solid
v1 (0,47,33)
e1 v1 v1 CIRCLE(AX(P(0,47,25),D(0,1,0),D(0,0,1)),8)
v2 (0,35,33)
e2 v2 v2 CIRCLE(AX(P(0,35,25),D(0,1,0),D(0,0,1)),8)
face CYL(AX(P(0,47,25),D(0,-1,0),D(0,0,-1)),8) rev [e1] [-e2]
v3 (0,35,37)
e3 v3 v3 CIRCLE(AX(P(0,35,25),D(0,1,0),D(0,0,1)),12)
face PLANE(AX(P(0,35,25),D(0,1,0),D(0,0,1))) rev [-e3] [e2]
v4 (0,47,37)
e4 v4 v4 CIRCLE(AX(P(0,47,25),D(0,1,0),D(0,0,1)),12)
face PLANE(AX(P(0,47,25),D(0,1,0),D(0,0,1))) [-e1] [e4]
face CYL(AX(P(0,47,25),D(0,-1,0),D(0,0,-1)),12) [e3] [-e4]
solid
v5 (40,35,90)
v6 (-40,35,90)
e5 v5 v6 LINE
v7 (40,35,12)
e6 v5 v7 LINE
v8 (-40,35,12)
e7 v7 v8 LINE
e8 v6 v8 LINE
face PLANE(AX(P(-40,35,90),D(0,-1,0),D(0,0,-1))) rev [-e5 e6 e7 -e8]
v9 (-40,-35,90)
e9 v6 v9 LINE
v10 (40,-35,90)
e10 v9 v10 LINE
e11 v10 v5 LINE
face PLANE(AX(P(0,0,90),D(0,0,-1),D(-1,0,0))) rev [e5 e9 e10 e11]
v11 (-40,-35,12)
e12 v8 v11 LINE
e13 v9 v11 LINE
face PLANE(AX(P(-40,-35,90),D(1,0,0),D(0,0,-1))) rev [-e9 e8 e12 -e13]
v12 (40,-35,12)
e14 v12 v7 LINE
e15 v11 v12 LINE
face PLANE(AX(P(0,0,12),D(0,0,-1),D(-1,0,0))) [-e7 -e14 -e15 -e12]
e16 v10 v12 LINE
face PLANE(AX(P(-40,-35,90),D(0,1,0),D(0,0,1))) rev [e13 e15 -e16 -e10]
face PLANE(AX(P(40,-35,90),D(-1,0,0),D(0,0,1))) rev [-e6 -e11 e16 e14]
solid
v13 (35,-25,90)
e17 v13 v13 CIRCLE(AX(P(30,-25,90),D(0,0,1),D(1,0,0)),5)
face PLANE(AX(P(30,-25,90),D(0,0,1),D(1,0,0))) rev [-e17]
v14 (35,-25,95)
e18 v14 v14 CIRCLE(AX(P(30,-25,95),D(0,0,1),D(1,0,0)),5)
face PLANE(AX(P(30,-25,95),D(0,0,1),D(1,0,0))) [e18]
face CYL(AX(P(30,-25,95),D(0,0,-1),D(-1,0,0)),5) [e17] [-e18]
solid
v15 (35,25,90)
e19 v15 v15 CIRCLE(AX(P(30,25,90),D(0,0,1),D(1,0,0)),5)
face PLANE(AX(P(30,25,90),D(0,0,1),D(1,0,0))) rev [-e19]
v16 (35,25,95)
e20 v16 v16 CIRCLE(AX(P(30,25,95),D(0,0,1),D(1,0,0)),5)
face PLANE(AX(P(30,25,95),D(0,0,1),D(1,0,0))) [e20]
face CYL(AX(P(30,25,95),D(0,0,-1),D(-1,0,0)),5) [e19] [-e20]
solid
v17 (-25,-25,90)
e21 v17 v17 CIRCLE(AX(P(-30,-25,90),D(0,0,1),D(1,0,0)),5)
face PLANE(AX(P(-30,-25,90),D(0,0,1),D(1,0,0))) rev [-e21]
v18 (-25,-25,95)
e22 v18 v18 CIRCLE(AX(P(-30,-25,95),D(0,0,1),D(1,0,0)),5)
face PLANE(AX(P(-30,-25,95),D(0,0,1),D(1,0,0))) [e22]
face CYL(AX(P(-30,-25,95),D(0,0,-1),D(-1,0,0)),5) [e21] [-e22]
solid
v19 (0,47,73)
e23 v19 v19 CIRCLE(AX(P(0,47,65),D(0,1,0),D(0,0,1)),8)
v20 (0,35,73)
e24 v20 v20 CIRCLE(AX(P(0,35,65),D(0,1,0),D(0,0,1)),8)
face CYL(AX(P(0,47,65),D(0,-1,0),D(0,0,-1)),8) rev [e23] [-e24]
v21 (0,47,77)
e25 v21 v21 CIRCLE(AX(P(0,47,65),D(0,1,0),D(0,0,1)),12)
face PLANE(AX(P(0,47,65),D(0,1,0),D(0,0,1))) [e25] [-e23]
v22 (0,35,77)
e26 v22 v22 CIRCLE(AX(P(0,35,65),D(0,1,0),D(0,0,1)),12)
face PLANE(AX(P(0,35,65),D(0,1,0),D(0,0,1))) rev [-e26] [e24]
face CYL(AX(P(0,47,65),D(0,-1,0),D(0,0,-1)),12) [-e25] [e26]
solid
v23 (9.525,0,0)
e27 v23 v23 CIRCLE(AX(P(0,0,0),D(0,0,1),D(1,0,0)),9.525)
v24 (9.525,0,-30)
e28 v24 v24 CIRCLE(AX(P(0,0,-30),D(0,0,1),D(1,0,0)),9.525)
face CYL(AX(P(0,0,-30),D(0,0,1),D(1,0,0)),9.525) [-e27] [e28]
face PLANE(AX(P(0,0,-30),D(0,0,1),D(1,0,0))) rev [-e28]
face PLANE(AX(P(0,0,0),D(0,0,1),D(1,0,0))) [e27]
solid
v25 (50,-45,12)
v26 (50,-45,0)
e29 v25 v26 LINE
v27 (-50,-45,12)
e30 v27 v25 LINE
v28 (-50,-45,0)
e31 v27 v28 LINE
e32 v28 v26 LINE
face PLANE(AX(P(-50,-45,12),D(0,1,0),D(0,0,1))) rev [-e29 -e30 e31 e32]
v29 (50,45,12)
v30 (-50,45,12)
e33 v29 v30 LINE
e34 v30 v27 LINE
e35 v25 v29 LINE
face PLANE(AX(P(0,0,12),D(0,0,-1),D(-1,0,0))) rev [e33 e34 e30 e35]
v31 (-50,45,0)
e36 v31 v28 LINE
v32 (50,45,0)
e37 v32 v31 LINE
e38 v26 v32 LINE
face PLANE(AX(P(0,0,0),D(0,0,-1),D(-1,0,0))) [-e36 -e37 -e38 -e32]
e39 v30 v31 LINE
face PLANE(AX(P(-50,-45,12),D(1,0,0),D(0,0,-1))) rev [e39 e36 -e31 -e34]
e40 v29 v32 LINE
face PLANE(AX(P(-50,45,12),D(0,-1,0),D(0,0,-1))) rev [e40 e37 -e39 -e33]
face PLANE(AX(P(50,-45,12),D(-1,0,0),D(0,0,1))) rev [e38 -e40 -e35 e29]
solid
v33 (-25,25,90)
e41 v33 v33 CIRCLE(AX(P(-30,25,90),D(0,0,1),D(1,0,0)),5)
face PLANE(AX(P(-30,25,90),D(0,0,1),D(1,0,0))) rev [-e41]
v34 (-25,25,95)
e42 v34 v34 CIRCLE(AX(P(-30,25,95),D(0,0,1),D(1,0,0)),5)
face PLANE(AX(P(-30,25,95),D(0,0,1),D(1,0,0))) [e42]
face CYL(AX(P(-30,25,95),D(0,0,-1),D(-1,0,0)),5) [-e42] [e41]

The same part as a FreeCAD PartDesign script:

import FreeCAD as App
import Part
import Sketcher

doc = App.newDocument("Part")
body = doc.addObject("PartDesign::Body", "Body")

sketch1 = body.newObject("Sketcher::SketchObject", "Sketch")
sketch1.AttachmentSupport = (doc.getObject("XY_Plane"), [""])
sketch1.MapMode = "FlatFace"
sketch1.AttachmentOffset = App.Placement(App.Vector(0, 0, 12), App.Rotation())
sketch1.addGeometry(Part.LineSegment(App.Vector(-40, 35, 0), App.Vector(-40, -35, 0)), False)
sketch1.addGeometry(Part.LineSegment(App.Vector(-40, -35, 0), App.Vector(40, -35, 0)), False)
sketch1.addGeometry(Part.LineSegment(App.Vector(40, -35, 0), App.Vector(40, 35, 0)), False)
sketch1.addGeometry(Part.LineSegment(App.Vector(40, 35, 0), App.Vector(-40, 35, 0)), False)
sketch1.addConstraint(Sketcher.Constraint("Coincident", 0, 2, 1, 1))
sketch1.addConstraint(Sketcher.Constraint("Coincident", 1, 2, 2, 1))
sketch1.addConstraint(Sketcher.Constraint("Coincident", 2, 2, 3, 1))
sketch1.addConstraint(Sketcher.Constraint("Coincident", 3, 2, 0, 1))
sketch1.addConstraint(Sketcher.Constraint("Vertical", 0))
sketch1.addConstraint(Sketcher.Constraint("Horizontal", 1))
sketch1.addConstraint(Sketcher.Constraint("Vertical", 2))
sketch1.addConstraint(Sketcher.Constraint("Horizontal", 3))
sketch1.addConstraint(Sketcher.Constraint("Symmetric", 0, 2, 2, 2, -1, 1))
sketch1.addConstraint(Sketcher.Constraint("DistanceX", 1, 1, 1, 2, 80.0))
sketch1.addConstraint(Sketcher.Constraint("DistanceY", 0, 2, 0, 1, 70.0))
pad1 = body.newObject("PartDesign::Pad", "Pad")
pad1.Profile = sketch1
pad1.Length = 78
body2 = doc.addObject("PartDesign::Body", "Body001")

sketch2 = body2.newObject("Sketcher::SketchObject", "Sketch001")
sketch2.AttachmentSupport = (doc.getObject("XY_Plane001"), [""])
sketch2.MapMode = "FlatFace"
sketch2.addGeometry(Part.LineSegment(App.Vector(-50, 45, 0), App.Vector(-50, -45, 0)), False)
sketch2.addGeometry(Part.LineSegment(App.Vector(-50, -45, 0), App.Vector(50, -45, 0)), False)
sketch2.addGeometry(Part.LineSegment(App.Vector(50, -45, 0), App.Vector(50, 45, 0)), False)
sketch2.addGeometry(Part.LineSegment(App.Vector(50, 45, 0), App.Vector(-50, 45, 0)), False)
sketch2.addConstraint(Sketcher.Constraint("Coincident", 0, 2, 1, 1))
sketch2.addConstraint(Sketcher.Constraint("Coincident", 1, 2, 2, 1))
sketch2.addConstraint(Sketcher.Constraint("Coincident", 2, 2, 3, 1))
sketch2.addConstraint(Sketcher.Constraint("Coincident", 3, 2, 0, 1))
sketch2.addConstraint(Sketcher.Constraint("Vertical", 0))
sketch2.addConstraint(Sketcher.Constraint("Horizontal", 1))
sketch2.addConstraint(Sketcher.Constraint("Vertical", 2))
sketch2.addConstraint(Sketcher.Constraint("Horizontal", 3))
sketch2.addConstraint(Sketcher.Constraint("Symmetric", 0, 2, 2, 2, -1, 1))
sketch2.addConstraint(Sketcher.Constraint("DistanceX", 1, 1, 1, 2, 100.0))
sketch2.addConstraint(Sketcher.Constraint("DistanceY", 0, 2, 0, 1, 90.0))
pad2 = body2.newObject("PartDesign::Pad", "Pad001")
pad2.Profile = sketch2
pad2.Length = 12
body3 = doc.addObject("PartDesign::Body", "Body002")

sketch3 = body3.newObject("Sketcher::SketchObject", "Sketch002")
sketch3.AttachmentSupport = (doc.getObject("XY_Plane002"), [""])
sketch3.MapMode = "FlatFace"
sketch3.addGeometry(Part.Circle(App.Vector(0, 0, 0), App.Vector(0, 0, 1), 10), False)
sketch3.addConstraint(Sketcher.Constraint("Coincident", 0, 3, -1, 1))
sketch3.addConstraint(Sketcher.Constraint("Diameter", 0, 19.05))
pad3 = body3.newObject("PartDesign::Pad", "Pad002")
pad3.Profile = sketch3
pad3.Length = 30
pad3.Reversed = True
body4 = doc.addObject("PartDesign::Body", "Body003")

sketch4 = body4.newObject("Sketcher::SketchObject", "Sketch003")
sketch4.AttachmentSupport = (doc.getObject("XY_Plane003"), [""])
sketch4.MapMode = "FlatFace"
sketch4.AttachmentOffset = App.Placement(App.Vector(0, 0, 90), App.Rotation())
sketch4.addGeometry(Part.Circle(App.Vector(-30, -25, 0), App.Vector(0, 0, 1), 5), False)
sketch4.addConstraint(Sketcher.Constraint("Diameter", 0, 10.0))
sketch4.addConstraint(Sketcher.Constraint("DistanceX", 0, 3, -1, 1, 30.0))
sketch4.addConstraint(Sketcher.Constraint("DistanceY", 0, 3, -1, 1, 25.0))
pad4 = body4.newObject("PartDesign::Pad", "Pad003")
pad4.Profile = sketch4
pad4.Length = 5
body5 = doc.addObject("PartDesign::Body", "Body004")

sketch5 = body5.newObject("Sketcher::SketchObject", "Sketch004")
sketch5.AttachmentSupport = (doc.getObject("XY_Plane004"), [""])
sketch5.MapMode = "FlatFace"
sketch5.AttachmentOffset = App.Placement(App.Vector(0, 0, 90), App.Rotation())
sketch5.addGeometry(Part.Circle(App.Vector(-30, 25, 0), App.Vector(0, 0, 1), 5), False)
sketch5.addConstraint(Sketcher.Constraint("Diameter", 0, 10.0))
sketch5.addConstraint(Sketcher.Constraint("DistanceX", 0, 3, -1, 1, 30.0))
sketch5.addConstraint(Sketcher.Constraint("DistanceY", -1, 1, 0, 3, 25.0))
pad5 = body5.newObject("PartDesign::Pad", "Pad004")
pad5.Profile = sketch5
pad5.Length = 5
body6 = doc.addObject("PartDesign::Body", "Body005")

sketch6 = body6.newObject("Sketcher::SketchObject", "Sketch005")
sketch6.AttachmentSupport = (doc.getObject("XY_Plane005"), [""])
sketch6.MapMode = "FlatFace"
sketch6.AttachmentOffset = App.Placement(App.Vector(0, 0, 90), App.Rotation())
sketch6.addGeometry(Part.Circle(App.Vector(30, -25, 0), App.Vector(0, 0, 1), 5), False)
sketch6.addConstraint(Sketcher.Constraint("Diameter", 0, 10.0))
sketch6.addConstraint(Sketcher.Constraint("DistanceX", -1, 1, 0, 3, 30.0))
sketch6.addConstraint(Sketcher.Constraint("DistanceY", 0, 3, -1, 1, 25.0))
pad6 = body6.newObject("PartDesign::Pad", "Pad005")
pad6.Profile = sketch6
pad6.Length = 5
body7 = doc.addObject("PartDesign::Body", "Body006")

sketch7 = body7.newObject("Sketcher::SketchObject", "Sketch006")
sketch7.AttachmentSupport = (doc.getObject("XY_Plane006"), [""])
sketch7.MapMode = "FlatFace"
sketch7.AttachmentOffset = App.Placement(App.Vector(0, 0, 90), App.Rotation())
sketch7.addGeometry(Part.Circle(App.Vector(30, 25, 0), App.Vector(0, 0, 1), 5), False)
sketch7.addConstraint(Sketcher.Constraint("Diameter", 0, 10.0))
sketch7.addConstraint(Sketcher.Constraint("DistanceX", -1, 1, 0, 3, 30.0))
sketch7.addConstraint(Sketcher.Constraint("DistanceY", -1, 1, 0, 3, 25.0))
pad7 = body7.newObject("PartDesign::Pad", "Pad006")
pad7.Profile = sketch7
pad7.Length = 5
body8 = doc.addObject("PartDesign::Body", "Body007")

sketch8 = body8.newObject("Sketcher::SketchObject", "Sketch007")
sketch8.AttachmentSupport = (doc.getObject("XZ_Plane007"), [""])
sketch8.MapMode = "FlatFace"
sketch8.AttachmentOffset = App.Placement(App.Vector(0, 0, -35), App.Rotation())
sketch8.addGeometry(Part.Circle(App.Vector(0, 25, 0), App.Vector(0, 0, 1), 12), False)
sketch8.addGeometry(Part.Circle(App.Vector(0, 25, 0), App.Vector(0, 0, 1), 8), False)
sketch8.addConstraint(Sketcher.Constraint("Coincident", 1, 3, 0, 3))
sketch8.addConstraint(Sketcher.Constraint("PointOnObject", 0, 3, -2))
sketch8.addConstraint(Sketcher.Constraint("Diameter", 0, 24.0))
sketch8.addConstraint(Sketcher.Constraint("Diameter", 1, 16.0))
sketch8.addConstraint(Sketcher.Constraint("DistanceY", -1, 1, 0, 3, 25.0))
pad8 = body8.newObject("PartDesign::Pad", "Pad007")
pad8.Profile = sketch8
pad8.Length = 12
pad8.Reversed = True
body9 = doc.addObject("PartDesign::Body", "Body008")

sketch9 = body9.newObject("Sketcher::SketchObject", "Sketch008")
sketch9.AttachmentSupport = (doc.getObject("XZ_Plane008"), [""])
sketch9.MapMode = "FlatFace"
sketch9.AttachmentOffset = App.Placement(App.Vector(0, 0, -35), App.Rotation())
sketch9.addGeometry(Part.Circle(App.Vector(0, 65, 0), App.Vector(0, 0, 1), 12), False)
sketch9.addGeometry(Part.Circle(App.Vector(0, 65, 0), App.Vector(0, 0, 1), 8), False)
sketch9.addConstraint(Sketcher.Constraint("Coincident", 1, 3, 0, 3))
sketch9.addConstraint(Sketcher.Constraint("PointOnObject", 0, 3, -2))
sketch9.addConstraint(Sketcher.Constraint("Diameter", 0, 24.0))
sketch9.addConstraint(Sketcher.Constraint("Diameter", 1, 16.0))
sketch9.addConstraint(Sketcher.Constraint("DistanceY", -1, 1, 0, 3, 65.0))
pad9 = body9.newObject("PartDesign::Pad", "Pad008")
pad9.Profile = sketch9
pad9.Length = 12
pad9.Reversed = True

doc.recompute()
